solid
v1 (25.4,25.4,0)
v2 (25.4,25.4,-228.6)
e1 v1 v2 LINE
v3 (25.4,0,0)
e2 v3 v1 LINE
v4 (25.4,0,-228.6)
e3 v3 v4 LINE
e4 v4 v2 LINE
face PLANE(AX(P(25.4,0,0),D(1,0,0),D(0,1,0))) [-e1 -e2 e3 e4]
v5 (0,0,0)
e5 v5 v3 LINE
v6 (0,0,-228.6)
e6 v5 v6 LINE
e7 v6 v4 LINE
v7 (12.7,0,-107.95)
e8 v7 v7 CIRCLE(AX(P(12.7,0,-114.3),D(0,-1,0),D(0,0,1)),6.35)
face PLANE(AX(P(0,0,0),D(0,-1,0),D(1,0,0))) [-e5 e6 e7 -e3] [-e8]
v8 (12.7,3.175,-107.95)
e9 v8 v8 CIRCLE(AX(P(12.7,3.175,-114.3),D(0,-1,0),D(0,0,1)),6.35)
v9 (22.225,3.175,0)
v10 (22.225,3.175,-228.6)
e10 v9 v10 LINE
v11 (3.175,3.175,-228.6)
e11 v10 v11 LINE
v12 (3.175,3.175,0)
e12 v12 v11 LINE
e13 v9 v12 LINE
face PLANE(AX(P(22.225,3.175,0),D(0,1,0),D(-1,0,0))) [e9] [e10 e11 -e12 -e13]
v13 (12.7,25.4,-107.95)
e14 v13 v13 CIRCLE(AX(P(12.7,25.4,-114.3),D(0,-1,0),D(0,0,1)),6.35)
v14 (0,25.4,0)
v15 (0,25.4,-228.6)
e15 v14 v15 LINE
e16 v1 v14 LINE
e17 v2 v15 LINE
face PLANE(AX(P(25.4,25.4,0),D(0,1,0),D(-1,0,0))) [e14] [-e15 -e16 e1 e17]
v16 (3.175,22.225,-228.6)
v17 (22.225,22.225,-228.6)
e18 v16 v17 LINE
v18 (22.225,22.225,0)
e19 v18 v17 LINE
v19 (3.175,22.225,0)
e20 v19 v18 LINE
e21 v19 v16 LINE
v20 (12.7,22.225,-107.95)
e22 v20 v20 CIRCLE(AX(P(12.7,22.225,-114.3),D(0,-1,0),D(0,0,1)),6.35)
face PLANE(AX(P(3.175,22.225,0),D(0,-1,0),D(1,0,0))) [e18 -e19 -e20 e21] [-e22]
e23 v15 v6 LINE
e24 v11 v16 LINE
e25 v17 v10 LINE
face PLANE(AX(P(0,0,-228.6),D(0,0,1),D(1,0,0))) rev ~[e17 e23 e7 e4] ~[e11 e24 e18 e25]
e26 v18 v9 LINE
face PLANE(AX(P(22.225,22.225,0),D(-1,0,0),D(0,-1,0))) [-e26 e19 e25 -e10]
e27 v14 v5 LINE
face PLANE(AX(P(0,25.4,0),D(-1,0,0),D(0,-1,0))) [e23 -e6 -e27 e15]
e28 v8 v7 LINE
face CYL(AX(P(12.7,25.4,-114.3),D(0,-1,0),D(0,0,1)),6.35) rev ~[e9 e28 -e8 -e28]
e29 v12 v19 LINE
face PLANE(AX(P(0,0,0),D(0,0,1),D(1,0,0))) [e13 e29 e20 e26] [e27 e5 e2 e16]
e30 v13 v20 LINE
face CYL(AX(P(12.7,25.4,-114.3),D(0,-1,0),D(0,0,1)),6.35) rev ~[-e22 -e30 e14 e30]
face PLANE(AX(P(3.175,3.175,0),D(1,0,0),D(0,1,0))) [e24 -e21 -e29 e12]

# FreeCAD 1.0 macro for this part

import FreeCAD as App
import Part
import Sketcher
Q = App.Units.Quantity


def add_polygon(sketch, points):
    """Adds a closed chain of lines whose ends are joined by coincident constraints."""
    first, n = sketch.GeometryCount, len(points)
    for a, b in zip(points, points[1:] + points[:1]):
        sketch.addGeometry(Part.LineSegment(App.Vector(*a, 0), App.Vector(*b, 0)), False)
    for i in range(n):
        sketch.addConstraint(Sketcher.Constraint("Coincident", first + i, 2, first + (i + 1) % n, 1))

doc = App.newDocument("Part")
body = doc.addObject("PartDesign::Body", "Body")

# Sketch on XY plane
sketch1 = doc.addObject("Sketcher::SketchObject", "Sketch")
body.addObject(sketch1)
sketch1.AttachmentSupport = (doc.XY_Plane, [""])
sketch1.MapMode = "FlatFace"
add_polygon(sketch1, [(0, 25), (0, 0), (25, 0), (25, 25)])  # lines 0-3
add_polygon(sketch1, [(3, 3), (3, 22), (22, 22), (22, 3)])  # lines 4-7
sketch1.addConstraint([
    Sketcher.Constraint("Vertical", 0),
    Sketcher.Constraint("Horizontal", 1),
    Sketcher.Constraint("Vertical", 2),
    Sketcher.Constraint("Horizontal", 3),
    Sketcher.Constraint("Vertical", 4),
    Sketcher.Constraint("Horizontal", 5),
    Sketcher.Constraint("Vertical", 6),
    Sketcher.Constraint("Horizontal", 7),
    Sketcher.Constraint("Coincident", 0, 2, -1, 1),
    Sketcher.Constraint("Equal", 3, 0),
    Sketcher.Constraint("Equal", 7, 4),
    Sketcher.Constraint("DistanceX", 1, 1, 1, 2, Q("1 in")),
    Sketcher.Constraint("DistanceX", -1, 1, 4, 2, Q("0.125 in")),
    Sketcher.Constraint("DistanceY", -1, 1, 6, 2, Q("0.125 in")),
    Sketcher.Constraint("DistanceY", 4, 2, 3, 2, Q("0.125 in")),
])
pad1 = doc.addObject("PartDesign::Pad", "Pad")
body.addObject(pad1)
pad1.Profile = sketch1
pad1.Length = Q("9 in")
pad1.Reversed = True

# Sketch on XZ plane
sketch2 = doc.addObject("Sketcher::SketchObject", "Sketch001")
body.addObject(sketch2)
sketch2.AttachmentSupport = (doc.XZ_Plane, [""])
sketch2.MapMode = "FlatFace"
sketch2.AttachmentOffset = App.Placement(App.Vector(0, 0, -1 * 25.4), App.Rotation())
sketch2.addGeometry(Part.Circle(App.Vector(13, -114, 0), App.Vector(0, 0, 1), 6), False)
sketch2.addConstraint([
    Sketcher.Constraint("Diameter", 0, Q("0.5 in")),
    Sketcher.Constraint("DistanceX", -1, 1, 0, 3, Q("0.5 in")),
    Sketcher.Constraint("DistanceY", 0, 3, -1, 1, Q("4.5 in")),
])
doc.recompute()
hole = doc.addObject("PartDesign::Hole", "Hole")
body.addObject(hole)
hole.Profile = sketch2
hole.ThreadType = "None"
hole.Diameter = Q("0.5 in")
hole.DepthType = "Dimension"
hole.Depth = Q("1 in")
hole.DrillPoint = "Angled"
hole.DrillPointAngle = 118
hole.Reversed = True

doc.recompute()
